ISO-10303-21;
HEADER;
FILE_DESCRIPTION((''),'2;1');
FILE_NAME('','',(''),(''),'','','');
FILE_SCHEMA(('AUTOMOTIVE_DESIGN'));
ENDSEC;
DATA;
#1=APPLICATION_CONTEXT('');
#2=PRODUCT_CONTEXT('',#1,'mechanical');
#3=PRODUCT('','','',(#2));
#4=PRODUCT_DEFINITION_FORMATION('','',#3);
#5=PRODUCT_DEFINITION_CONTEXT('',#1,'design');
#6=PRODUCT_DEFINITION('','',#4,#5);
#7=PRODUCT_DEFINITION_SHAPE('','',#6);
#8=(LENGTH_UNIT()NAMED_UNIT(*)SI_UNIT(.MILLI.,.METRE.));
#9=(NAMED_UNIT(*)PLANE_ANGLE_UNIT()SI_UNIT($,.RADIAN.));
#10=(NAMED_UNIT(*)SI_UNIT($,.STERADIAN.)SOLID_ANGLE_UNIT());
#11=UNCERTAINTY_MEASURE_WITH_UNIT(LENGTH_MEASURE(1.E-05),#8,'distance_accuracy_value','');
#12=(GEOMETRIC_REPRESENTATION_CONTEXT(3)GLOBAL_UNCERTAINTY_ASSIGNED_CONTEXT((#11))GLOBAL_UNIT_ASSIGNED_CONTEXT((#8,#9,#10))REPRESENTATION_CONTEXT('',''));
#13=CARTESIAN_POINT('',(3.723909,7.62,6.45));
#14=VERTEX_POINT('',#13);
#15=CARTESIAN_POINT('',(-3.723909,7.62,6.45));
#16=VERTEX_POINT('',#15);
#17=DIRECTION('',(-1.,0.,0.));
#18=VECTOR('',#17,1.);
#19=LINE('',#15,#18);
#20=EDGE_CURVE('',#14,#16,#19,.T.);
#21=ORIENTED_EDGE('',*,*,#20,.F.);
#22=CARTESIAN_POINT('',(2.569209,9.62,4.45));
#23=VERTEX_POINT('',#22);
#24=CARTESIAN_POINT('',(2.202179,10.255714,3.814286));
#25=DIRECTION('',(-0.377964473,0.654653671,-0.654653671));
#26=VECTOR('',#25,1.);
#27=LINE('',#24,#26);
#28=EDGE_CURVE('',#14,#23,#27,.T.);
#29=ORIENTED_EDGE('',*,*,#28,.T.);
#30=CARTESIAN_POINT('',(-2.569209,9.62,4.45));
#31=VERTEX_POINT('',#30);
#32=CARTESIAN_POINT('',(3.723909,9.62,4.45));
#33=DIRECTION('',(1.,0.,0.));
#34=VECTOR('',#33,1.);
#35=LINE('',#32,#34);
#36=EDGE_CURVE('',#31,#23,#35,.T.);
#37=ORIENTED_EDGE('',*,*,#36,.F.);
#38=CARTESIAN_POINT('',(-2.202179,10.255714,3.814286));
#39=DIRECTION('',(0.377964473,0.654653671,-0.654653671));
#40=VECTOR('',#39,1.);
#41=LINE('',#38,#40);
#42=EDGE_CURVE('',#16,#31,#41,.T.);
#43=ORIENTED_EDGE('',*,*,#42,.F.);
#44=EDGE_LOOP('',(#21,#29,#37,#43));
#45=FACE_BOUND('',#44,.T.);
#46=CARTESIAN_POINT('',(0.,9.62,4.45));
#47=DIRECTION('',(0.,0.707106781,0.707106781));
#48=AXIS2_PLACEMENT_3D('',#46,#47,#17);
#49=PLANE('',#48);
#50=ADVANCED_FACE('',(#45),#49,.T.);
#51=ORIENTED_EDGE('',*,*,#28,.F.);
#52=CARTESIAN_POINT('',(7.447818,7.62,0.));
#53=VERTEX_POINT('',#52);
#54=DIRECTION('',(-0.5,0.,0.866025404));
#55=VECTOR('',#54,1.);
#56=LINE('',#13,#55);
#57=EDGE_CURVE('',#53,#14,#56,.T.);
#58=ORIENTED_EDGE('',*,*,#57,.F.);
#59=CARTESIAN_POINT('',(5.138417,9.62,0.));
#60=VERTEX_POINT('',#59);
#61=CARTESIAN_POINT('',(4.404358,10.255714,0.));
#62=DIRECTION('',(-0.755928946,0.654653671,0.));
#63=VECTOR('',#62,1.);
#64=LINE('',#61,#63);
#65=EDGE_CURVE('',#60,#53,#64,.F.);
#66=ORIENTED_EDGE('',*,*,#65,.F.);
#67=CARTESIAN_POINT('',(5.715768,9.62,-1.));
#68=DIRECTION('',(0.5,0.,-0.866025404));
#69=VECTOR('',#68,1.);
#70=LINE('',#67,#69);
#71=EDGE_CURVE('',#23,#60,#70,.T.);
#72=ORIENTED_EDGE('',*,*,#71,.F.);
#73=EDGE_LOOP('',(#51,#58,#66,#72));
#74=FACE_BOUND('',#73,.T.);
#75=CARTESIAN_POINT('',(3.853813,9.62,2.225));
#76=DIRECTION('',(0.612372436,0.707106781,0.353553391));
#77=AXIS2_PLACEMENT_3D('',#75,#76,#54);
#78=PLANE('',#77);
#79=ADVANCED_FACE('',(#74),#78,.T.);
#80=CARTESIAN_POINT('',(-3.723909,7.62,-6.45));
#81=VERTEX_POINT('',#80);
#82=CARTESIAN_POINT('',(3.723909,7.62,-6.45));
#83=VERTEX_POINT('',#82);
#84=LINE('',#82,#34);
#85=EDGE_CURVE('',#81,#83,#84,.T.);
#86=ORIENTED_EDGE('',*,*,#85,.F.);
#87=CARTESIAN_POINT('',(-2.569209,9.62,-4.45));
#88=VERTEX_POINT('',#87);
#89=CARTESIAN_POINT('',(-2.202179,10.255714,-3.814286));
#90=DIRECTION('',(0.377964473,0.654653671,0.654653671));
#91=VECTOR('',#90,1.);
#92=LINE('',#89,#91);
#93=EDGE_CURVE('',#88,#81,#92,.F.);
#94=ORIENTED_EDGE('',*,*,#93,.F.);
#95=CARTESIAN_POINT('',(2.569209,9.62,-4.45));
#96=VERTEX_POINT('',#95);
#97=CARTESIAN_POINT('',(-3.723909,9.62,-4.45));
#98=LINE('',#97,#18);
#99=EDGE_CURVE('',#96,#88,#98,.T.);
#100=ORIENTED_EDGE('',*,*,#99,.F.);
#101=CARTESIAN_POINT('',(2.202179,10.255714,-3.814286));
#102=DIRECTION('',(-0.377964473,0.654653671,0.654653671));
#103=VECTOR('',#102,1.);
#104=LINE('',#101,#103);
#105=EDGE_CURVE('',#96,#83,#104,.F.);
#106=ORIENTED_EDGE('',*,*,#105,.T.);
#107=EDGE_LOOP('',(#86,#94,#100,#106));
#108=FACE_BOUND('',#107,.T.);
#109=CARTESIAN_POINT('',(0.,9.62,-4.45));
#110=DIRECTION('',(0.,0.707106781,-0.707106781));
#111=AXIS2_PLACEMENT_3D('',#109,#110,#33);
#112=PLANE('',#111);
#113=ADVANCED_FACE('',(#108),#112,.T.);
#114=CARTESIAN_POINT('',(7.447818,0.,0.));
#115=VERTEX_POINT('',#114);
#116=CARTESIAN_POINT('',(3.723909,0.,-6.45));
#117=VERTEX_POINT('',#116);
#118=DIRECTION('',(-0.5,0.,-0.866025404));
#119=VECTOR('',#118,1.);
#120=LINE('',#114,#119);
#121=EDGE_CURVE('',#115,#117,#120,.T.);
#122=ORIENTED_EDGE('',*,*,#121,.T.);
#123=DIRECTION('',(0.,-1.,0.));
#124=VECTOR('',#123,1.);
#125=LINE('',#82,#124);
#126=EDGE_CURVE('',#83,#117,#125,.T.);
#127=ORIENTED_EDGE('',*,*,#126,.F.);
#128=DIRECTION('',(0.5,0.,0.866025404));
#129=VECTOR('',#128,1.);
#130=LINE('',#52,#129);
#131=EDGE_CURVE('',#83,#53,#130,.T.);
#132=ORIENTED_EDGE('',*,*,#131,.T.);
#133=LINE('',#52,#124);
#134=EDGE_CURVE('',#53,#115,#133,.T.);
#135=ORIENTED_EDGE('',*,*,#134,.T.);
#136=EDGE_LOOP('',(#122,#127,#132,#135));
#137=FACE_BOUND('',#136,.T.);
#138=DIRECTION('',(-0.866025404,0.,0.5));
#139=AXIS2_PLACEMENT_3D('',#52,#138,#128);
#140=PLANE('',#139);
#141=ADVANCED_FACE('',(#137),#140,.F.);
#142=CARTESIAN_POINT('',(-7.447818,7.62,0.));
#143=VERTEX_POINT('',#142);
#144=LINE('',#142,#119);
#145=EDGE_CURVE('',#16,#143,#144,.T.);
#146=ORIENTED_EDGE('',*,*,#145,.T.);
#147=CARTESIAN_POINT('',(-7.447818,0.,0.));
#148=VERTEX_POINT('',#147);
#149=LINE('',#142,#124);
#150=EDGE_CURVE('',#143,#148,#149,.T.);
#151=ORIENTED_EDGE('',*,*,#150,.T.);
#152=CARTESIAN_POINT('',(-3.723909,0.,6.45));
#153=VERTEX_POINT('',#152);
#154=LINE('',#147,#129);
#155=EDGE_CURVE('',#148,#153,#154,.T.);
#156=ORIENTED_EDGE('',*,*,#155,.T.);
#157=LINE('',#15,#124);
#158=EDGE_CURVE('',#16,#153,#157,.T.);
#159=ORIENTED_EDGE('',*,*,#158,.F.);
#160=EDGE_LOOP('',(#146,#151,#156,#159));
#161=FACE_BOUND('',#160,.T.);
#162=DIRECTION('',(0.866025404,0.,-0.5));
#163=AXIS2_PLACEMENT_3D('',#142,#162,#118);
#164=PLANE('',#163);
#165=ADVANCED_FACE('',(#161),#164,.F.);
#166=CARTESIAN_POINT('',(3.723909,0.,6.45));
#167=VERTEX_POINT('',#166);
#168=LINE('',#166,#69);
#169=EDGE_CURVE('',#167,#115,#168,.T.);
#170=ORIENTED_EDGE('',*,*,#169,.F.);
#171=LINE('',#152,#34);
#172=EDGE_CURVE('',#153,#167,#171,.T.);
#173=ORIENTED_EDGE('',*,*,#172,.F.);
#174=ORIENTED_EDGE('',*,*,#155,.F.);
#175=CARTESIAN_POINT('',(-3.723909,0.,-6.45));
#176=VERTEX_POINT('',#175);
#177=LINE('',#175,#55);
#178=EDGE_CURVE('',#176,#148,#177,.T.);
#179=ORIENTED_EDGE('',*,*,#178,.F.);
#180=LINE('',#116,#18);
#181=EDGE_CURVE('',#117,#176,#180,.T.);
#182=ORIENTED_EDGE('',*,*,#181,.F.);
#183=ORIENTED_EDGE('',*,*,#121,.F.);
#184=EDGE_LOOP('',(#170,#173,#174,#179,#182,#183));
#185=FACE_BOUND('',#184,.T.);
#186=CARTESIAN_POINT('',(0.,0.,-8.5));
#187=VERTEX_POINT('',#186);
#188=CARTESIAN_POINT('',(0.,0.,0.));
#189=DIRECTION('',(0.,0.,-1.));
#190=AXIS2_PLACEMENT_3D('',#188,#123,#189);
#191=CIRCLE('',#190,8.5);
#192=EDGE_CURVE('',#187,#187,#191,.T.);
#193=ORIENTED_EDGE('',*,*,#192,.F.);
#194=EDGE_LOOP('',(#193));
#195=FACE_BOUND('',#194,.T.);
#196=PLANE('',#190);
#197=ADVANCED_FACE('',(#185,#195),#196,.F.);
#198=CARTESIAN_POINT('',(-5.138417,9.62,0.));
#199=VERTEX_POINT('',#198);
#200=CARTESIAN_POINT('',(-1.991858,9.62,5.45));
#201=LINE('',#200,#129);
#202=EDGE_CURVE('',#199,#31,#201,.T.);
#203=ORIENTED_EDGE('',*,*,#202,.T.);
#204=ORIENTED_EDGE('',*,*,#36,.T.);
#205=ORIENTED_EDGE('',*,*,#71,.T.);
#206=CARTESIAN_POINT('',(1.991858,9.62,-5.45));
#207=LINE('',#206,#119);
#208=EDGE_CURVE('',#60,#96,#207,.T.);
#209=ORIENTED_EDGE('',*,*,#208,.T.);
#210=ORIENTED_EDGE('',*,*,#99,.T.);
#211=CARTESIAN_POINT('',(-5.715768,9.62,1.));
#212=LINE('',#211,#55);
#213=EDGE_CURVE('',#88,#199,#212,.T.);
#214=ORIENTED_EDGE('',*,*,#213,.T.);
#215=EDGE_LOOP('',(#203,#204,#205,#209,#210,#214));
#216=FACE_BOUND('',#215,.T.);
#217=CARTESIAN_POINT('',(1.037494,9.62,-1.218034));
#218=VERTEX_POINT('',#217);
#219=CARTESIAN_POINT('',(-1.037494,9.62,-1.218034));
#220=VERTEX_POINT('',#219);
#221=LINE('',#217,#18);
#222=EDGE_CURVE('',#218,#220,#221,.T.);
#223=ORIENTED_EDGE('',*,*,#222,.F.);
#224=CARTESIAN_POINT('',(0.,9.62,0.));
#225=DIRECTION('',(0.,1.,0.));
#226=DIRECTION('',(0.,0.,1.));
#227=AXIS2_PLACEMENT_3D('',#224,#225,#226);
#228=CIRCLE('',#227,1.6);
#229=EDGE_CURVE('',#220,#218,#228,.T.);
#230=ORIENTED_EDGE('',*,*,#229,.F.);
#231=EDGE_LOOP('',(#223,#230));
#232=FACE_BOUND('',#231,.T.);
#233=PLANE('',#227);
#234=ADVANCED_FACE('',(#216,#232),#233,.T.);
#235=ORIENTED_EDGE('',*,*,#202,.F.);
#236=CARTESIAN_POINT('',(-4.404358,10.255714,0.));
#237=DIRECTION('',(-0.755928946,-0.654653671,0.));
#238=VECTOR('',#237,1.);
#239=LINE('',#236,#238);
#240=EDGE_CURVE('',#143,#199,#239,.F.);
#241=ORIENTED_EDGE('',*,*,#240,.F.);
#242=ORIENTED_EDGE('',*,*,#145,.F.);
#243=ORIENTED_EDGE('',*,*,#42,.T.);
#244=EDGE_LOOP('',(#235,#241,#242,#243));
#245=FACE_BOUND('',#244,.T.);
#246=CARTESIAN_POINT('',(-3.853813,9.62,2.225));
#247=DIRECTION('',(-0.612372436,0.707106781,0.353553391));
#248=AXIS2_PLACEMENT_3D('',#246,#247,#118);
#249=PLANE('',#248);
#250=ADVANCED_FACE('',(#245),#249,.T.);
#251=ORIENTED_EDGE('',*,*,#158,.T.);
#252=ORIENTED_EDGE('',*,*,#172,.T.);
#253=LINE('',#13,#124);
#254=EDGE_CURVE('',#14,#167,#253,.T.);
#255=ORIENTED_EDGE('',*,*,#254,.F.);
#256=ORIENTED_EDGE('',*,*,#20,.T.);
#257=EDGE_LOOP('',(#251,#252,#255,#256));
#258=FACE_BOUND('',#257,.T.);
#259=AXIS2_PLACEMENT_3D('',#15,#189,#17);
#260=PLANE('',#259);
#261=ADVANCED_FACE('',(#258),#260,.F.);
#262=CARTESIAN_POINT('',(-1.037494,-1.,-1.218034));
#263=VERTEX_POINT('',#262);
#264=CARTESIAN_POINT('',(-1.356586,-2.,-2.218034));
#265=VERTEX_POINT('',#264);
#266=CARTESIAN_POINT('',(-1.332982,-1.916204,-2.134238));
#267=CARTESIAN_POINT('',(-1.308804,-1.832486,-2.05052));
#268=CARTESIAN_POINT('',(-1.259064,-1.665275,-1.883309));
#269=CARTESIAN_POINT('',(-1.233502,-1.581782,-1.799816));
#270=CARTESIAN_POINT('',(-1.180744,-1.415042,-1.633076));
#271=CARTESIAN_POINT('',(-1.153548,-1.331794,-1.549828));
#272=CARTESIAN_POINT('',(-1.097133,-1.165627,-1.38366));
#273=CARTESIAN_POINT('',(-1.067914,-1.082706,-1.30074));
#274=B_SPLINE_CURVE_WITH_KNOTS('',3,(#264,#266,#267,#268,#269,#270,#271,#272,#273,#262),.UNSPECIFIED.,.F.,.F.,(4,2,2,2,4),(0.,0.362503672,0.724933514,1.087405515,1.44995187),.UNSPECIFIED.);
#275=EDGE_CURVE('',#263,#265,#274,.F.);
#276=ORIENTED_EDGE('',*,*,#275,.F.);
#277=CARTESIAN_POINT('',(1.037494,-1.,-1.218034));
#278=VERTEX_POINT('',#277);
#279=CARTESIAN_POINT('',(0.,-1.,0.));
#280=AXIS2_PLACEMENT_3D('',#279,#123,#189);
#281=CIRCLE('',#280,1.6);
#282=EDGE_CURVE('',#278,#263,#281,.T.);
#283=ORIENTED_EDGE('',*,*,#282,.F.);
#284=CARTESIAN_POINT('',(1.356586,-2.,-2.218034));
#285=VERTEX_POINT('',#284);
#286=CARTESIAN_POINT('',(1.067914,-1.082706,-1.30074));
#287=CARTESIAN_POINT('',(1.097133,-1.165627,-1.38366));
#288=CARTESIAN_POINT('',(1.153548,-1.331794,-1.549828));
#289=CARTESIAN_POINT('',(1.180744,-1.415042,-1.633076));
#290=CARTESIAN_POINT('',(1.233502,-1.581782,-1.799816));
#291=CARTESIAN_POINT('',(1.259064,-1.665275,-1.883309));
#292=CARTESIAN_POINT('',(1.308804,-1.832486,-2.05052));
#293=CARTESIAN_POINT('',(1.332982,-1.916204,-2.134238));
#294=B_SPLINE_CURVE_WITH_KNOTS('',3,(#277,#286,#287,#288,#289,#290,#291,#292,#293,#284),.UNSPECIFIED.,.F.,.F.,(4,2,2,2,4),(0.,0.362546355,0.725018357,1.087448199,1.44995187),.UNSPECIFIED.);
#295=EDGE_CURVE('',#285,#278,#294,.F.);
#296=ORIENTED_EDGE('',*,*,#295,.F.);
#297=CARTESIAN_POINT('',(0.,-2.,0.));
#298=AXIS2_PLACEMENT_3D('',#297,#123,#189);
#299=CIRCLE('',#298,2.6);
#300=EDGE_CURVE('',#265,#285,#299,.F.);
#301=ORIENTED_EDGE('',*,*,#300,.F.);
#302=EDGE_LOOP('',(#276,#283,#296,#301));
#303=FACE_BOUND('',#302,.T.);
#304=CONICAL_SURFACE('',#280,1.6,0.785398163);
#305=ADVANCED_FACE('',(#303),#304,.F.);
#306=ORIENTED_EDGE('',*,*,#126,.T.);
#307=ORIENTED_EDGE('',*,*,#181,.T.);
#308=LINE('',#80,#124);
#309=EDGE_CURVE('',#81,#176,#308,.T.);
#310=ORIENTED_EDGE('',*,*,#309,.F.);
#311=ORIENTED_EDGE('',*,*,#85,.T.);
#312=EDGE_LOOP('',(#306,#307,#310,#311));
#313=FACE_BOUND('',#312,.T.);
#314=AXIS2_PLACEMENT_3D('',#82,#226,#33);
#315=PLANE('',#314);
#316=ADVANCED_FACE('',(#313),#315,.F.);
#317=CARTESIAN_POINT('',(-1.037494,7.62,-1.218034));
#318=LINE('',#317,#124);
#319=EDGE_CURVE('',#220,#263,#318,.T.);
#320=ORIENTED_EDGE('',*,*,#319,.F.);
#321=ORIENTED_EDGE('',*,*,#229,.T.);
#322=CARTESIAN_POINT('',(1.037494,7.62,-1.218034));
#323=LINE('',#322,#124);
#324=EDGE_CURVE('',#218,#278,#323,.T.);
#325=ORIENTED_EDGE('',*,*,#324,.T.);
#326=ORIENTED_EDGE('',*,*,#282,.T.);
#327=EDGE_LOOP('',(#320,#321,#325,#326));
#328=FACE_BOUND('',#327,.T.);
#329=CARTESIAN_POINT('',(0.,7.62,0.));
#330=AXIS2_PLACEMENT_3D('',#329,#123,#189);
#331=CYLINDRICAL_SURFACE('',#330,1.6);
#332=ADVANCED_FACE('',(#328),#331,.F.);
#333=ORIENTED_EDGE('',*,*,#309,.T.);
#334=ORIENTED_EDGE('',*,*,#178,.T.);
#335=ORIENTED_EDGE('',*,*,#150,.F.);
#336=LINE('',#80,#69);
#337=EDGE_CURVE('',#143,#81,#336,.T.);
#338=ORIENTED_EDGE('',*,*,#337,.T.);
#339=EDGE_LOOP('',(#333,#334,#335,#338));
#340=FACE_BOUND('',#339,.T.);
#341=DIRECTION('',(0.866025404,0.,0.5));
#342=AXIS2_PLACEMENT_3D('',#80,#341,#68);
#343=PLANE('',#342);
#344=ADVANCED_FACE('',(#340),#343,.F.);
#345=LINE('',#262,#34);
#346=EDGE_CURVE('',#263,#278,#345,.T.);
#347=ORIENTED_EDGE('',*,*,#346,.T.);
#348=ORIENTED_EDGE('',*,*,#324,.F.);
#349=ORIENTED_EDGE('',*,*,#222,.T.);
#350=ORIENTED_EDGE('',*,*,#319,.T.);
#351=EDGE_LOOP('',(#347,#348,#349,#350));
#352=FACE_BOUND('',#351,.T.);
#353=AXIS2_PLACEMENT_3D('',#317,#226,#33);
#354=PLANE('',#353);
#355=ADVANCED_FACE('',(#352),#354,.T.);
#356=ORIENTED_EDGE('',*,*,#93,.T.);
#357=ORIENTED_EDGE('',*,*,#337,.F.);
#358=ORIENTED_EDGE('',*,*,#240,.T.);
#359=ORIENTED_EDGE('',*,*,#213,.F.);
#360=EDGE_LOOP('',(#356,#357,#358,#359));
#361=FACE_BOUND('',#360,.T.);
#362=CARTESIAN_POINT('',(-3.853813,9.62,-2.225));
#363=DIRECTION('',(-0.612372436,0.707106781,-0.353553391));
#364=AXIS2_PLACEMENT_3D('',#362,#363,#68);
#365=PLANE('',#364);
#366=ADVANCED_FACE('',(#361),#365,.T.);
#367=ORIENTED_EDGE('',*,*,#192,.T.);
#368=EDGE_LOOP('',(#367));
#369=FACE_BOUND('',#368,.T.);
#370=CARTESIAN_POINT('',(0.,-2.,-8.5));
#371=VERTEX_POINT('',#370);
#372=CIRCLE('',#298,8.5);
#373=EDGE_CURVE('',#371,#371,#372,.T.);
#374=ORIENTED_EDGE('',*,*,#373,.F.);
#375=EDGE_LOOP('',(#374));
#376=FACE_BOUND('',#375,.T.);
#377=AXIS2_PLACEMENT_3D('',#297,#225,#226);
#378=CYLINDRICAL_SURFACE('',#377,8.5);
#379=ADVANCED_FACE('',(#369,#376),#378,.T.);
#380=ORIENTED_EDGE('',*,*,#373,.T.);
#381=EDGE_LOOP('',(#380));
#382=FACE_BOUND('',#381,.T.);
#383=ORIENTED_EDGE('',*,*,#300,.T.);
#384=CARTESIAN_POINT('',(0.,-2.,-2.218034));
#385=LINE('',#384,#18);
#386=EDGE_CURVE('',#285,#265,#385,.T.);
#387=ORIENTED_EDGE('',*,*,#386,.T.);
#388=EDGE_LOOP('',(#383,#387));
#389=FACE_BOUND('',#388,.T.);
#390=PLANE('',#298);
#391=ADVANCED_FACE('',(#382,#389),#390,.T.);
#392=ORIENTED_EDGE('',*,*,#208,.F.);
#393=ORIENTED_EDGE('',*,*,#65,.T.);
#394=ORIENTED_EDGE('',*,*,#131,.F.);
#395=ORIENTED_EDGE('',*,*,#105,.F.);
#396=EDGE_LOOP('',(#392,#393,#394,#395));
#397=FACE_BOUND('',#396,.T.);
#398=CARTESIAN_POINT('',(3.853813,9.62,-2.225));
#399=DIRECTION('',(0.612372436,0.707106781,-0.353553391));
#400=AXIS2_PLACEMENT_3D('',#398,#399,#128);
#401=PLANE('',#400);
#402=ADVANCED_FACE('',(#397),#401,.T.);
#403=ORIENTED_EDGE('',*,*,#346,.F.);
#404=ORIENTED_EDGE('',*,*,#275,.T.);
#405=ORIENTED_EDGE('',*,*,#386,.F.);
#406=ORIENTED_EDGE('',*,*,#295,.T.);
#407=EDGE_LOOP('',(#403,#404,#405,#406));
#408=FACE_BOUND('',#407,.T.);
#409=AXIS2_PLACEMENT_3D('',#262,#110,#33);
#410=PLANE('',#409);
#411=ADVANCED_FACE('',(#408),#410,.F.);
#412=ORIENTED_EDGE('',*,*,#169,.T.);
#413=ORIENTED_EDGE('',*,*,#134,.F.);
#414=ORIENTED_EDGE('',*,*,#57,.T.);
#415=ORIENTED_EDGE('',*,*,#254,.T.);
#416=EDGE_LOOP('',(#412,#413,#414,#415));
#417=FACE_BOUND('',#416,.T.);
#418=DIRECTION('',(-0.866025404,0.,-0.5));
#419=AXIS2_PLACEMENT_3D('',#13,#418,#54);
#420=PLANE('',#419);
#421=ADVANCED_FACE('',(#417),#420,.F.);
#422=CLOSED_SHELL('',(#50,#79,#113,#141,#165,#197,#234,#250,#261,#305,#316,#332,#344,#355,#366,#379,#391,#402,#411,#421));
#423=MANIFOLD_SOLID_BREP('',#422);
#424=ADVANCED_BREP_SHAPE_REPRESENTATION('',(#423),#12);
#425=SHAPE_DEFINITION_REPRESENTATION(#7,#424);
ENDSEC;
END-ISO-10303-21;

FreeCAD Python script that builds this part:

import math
import FreeCAD as App
import Part
import Sketcher
Q = App.Units.Quantity


def edges_at(feature, points):
    """Names of the edges that pass closest to the given points."""
    edges = feature.Shape.Edges
    near = lambda p: min(range(len(edges)), key=lambda i: edges[i].distToShape(Part.Vertex(*p))[0])
    return sorted({f"Edge{near(p) + 1}" for p in points})


def add_polygon(sketch, points):
    """Adds a closed chain of lines whose ends are joined by coincident constraints."""
    first, n = sketch.GeometryCount, len(points)
    for a, b in zip(points, points[1:] + points[:1]):
        sketch.addGeometry(Part.LineSegment(App.Vector(*a, 0), App.Vector(*b, 0)), False)
    for i in range(n):
        sketch.addConstraint(Sketcher.Constraint("Coincident", first + i, 2, first + (i + 1) % n, 1))

doc = App.newDocument("Part")
params = doc.addObject("Spreadsheet::Sheet", "Params")
for row, (alias, value) in enumerate([
    ("sketch1_radius", "1.6 mm"),
    ("pad1_length", "7.62 mm"),
    ("sketch2_diameter", "17 mm"),
    ("sketch2_radius", "1.6 mm"),
    ("pad2_length", "2 mm"),
    ("sketch3_radius", "1.6 mm"),
    ("pad3_length", "2 mm"),
    ("chamfer_size", "2 mm"),
    ("chamfer2_size", "1 mm"),
], start=1):
    params.set(f"A{row}", alias)
    params.set(f"B{row}", "=" + value)
    params.setAlias(f"B{row}", alias)

body = doc.addObject("PartDesign::Body", "Body")

sketch1 = body.newObject("Sketcher::SketchObject", "Sketch")
sketch1.AttachmentSupport = (doc.getObject("XZ_Plane"), [""])
sketch1.MapMode = "FlatFace"
add_polygon(sketch1, [(3.7, -6.5), (-3.7, -6.5), (-7.4, 0), (-3.7, 6.5), (3.7, 6.5), (7.4, 0)])
sketch1.addGeometry(Part.ArcOfCircle(Part.Circle(App.Vector(0, 0, 0), App.Vector(0, 0, 1), 1.6), math.radians(-50), math.radians(230)), False)
sketch1.addGeometry(Part.LineSegment(App.Vector(-1, -1.2, 0), App.Vector(1, -1.2, 0)), False)
sketch1.addConstraint([
    Sketcher.Constraint("Coincident", 6, 1, 7, 2),
    Sketcher.Constraint("Coincident", 7, 1, 6, 2),
    Sketcher.Constraint("Horizontal", 0),
    Sketcher.Constraint("Horizontal", 3),
    Sketcher.Constraint("Horizontal", 7),
    Sketcher.Constraint("Coincident", 6, 3, -1, 1),
    Sketcher.Constraint("Symmetric", 0, 2, 3, 2, -1, 1),
    Sketcher.Constraint("Symmetric", 1, 2, 4, 2, -1, 1),
    Sketcher.Constraint("PointOnObject", 1, 2, -1),
    Sketcher.Constraint("Parallel", 2, 5),
    Sketcher.Constraint("Vertical", 0, 2, 2, 2),
    Sketcher.Constraint("Radius", 6, 1.6),
    Sketcher.Constraint("Angle", 1, Q("120 deg")),
    Sketcher.Constraint("DistanceY", 0, 2, 2, 2, 12.9),
    Sketcher.Constraint("DistanceX", 0, 2, 0, 1, 7.447818),
    Sketcher.Constraint("DistanceX", 7, 1, 7, 2, 2.074987),
])
sketch1.setExpression("Constraints[17]", "Params.sketch1_radius")
pad1 = body.newObject("PartDesign::Pad", "Pad")
pad1.Profile = sketch1
pad1.setExpression("Length", "Params.pad1_length")
pad1.Reversed = True

sketch2 = body.newObject("Sketcher::SketchObject", "Sketch001")
sketch2.AttachmentSupport = (doc.getObject("XZ_Plane"), [""])
sketch2.MapMode = "FlatFace"
sketch2.addGeometry([
    Part.Circle(App.Vector(0, 0, 0), App.Vector(0, 0, 1), 8.5),
    Part.ArcOfCircle(Part.Circle(App.Vector(0, 0, 0), App.Vector(0, 0, 1), 1.6), math.radians(-50), math.radians(230)),
    Part.LineSegment(App.Vector(1, -1.2, 0), App.Vector(-1, -1.2, 0)),
], False)
sketch2.addConstraint([
    Sketcher.Constraint("Coincident", 1, 1, 2, 1),
    Sketcher.Constraint("Coincident", 2, 2, 1, 2),
    Sketcher.Constraint("Horizontal", 2),
    Sketcher.Constraint("Coincident", 0, 3, -1, 1),
    Sketcher.Constraint("Coincident", 1, 3, -1, 1),
    Sketcher.Constraint("Diameter", 0, 17.0),
    Sketcher.Constraint("Radius", 1, 1.6),
    Sketcher.Constraint("DistanceX", 2, 2, 2, 1, 2.074987),
])
sketch2.setExpression("Constraints[5]", "Params.sketch2_diameter")
sketch2.setExpression("Constraints[6]", "Params.sketch2_radius")
pad2 = body.newObject("PartDesign::Pad", "Pad001")
pad2.Profile = sketch2
pad2.setExpression("Length", "Params.pad2_length")

sketch3 = body.newObject("Sketcher::SketchObject", "Sketch002")
sketch3.AttachmentSupport = (doc.getObject("XZ_Plane"), [""])
sketch3.MapMode = "FlatFace"
sketch3.AttachmentOffset = App.Placement(App.Vector(0, 0, -7.62), App.Rotation())
add_polygon(sketch3, [(7.4, 0), (3.7, -6.5), (-3.7, -6.5), (-7.4, 0), (-3.7, 6.5), (3.7, 6.5)])
sketch3.addGeometry(Part.LineSegment(App.Vector(-1, -1.2, 0), App.Vector(1, -1.2, 0)), False)
sketch3.addGeometry(Part.ArcOfCircle(Part.Circle(App.Vector(0, 0, 0), App.Vector(0, 0, 1), 1.6), math.radians(-50), math.radians(230)), False)
sketch3.addConstraint([
    Sketcher.Constraint("Coincident", 6, 1, 7, 2),
    Sketcher.Constraint("Coincident", 7, 1, 6, 2),
    Sketcher.Constraint("Horizontal", 1),
    Sketcher.Constraint("Horizontal", 4),
    Sketcher.Constraint("Horizontal", 6),
    Sketcher.Constraint("Coincident", 7, 3, -1, 1),
    Sketcher.Constraint("Symmetric", 0, 2, 3, 2, -1, 1),
    Sketcher.Constraint("Symmetric", 2, 2, 5, 2, -1, 1),
    Sketcher.Constraint("PointOnObject", 2, 2, -1),
    Sketcher.Constraint("Parallel", 2, 5),
    Sketcher.Constraint("Vertical", 1, 2, 3, 2),
    Sketcher.Constraint("Radius", 7, 1.6),
    Sketcher.Constraint("Angle", 0, Q("-120 deg")),
    Sketcher.Constraint("DistanceY", 1, 2, 3, 2, 12.9),
    Sketcher.Constraint("DistanceX", 1, 2, 1, 1, 7.447818),
    Sketcher.Constraint("DistanceX", 6, 1, 6, 2, 2.074987),
])
sketch3.setExpression("Constraints[17]", "Params.sketch3_radius")
pad3 = body.newObject("PartDesign::Pad", "Pad002")
pad3.Profile = sketch3
pad3.setExpression("Length", "Params.pad3_length")
pad3.Reversed = True
doc.recompute()

chamfer = body.newObject("PartDesign::Chamfer", "Chamfer")
chamfer.Base = (pad3, edges_at(pad3, [
    (5.586, 9.62, 3.225),
    (5.586, 9.62, -3.225),
    (0, 9.62, -6.45),
    (-5.586, 9.62, -3.225),
    (-5.586, 9.62, 3.225),
    (0, 9.62, 6.45),
]))
chamfer.setExpression("Size", "Params.chamfer_size")
doc.recompute()

chamfer2 = body.newObject("PartDesign::Chamfer", "Chamfer001")
chamfer2.Base = (chamfer, edges_at(chamfer, [(0, -2, 1.6), (0, -2, -1.218)]))
chamfer2.setExpression("Size", "Params.chamfer2_size")

doc.recompute()
